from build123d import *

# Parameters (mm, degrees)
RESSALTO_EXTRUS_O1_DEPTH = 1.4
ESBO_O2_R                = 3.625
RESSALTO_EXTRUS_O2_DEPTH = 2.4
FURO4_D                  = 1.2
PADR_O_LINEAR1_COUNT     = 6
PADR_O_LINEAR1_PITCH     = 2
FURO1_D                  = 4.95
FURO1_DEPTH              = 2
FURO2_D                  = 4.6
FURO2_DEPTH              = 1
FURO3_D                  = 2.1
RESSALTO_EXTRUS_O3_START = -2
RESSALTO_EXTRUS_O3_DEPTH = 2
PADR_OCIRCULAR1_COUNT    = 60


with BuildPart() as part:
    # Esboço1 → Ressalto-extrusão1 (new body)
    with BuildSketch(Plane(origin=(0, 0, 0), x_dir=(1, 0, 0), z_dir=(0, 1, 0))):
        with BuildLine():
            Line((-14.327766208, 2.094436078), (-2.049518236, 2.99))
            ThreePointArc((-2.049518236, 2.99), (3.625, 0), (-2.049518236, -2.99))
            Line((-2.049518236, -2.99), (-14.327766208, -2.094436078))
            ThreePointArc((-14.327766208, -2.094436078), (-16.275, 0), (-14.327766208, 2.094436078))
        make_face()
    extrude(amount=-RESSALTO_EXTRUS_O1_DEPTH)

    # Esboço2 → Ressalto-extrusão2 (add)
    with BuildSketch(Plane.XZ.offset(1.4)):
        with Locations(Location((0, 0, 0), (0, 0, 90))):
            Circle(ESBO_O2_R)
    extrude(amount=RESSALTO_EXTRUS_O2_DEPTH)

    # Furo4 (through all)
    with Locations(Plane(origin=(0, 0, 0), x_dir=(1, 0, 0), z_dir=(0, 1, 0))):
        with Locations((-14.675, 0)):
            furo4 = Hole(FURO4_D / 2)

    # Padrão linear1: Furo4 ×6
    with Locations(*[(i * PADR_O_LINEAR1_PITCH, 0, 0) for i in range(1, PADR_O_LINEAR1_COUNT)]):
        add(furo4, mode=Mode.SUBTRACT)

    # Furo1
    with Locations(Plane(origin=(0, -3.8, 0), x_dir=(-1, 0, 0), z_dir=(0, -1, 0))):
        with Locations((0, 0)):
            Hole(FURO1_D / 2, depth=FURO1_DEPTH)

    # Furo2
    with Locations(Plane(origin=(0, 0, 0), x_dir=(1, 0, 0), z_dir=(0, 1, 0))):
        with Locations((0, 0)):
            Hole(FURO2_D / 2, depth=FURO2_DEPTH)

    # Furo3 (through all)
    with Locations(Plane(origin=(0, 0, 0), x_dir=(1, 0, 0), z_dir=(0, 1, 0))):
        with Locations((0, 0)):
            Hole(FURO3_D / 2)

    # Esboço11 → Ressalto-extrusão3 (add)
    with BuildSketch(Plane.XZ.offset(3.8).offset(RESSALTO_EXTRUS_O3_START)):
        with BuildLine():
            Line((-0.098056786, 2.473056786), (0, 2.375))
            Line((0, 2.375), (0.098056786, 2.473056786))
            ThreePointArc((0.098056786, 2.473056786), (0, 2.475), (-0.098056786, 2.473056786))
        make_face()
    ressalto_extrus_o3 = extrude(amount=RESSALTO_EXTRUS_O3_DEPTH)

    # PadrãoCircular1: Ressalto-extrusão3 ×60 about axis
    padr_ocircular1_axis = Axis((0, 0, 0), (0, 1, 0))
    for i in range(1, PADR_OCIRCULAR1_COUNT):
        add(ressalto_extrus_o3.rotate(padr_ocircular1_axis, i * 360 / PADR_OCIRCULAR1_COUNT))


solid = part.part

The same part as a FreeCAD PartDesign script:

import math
import FreeCAD as App
import Part
import Sketcher

V = App.Vector

doc = App.newDocument("Part")
params = doc.addObject("Spreadsheet::Sheet", "Params")
for row, (alias, value) in enumerate([
    ("sketch1_radius", "2.1 mm"),
    ("pad1_length", "1.4 mm"),
    ("sketch2_diameter", "7.25 mm"),
    ("pad2_length", "2.4 mm"),
    ("sketch3_diameter", "1.2 mm"),
    ("hole_diameter", "1.2 mm"),
    ("linearpattern_pitch", "2 mm"),
    ("sketch4_diameter", "4.95 mm"),
    ("hole2_diameter", "4.95 mm"),
    ("hole2_depth", "2 mm"),
    ("sketch5_diameter", "4.6 mm"),
    ("hole3_diameter", "4.6 mm"),
    ("hole3_depth", "1 mm"),
    ("sketch6_diameter", "2.1 mm"),
    ("hole4_diameter", "2.1 mm"),
    ("pad3_length", "2 mm"),
], start=1):
    params.set(f"A{row}", alias)
    params.set(f"B{row}", "=" + value)
    params.setAlias(f"B{row}", alias)

body = doc.addObject("PartDesign::Body", "Body")

# Sketch on XZ plane
sketch1 = body.newObject("Sketcher::SketchObject", "Sketch")
sketch1.AttachmentSupport = (doc.getObject("XZ_Plane"), [""])
sketch1.MapMode = "FlatFace"
sketch1.addGeometry(Part.LineSegment(V(-2.049518, -2.99, 0), V(-14.327766, -2.094436, 0)), False)
sketch1.addGeometry(Part.ArcOfCircle(Part.Circle(V(-14.175, 0, 0), V(0, 0, 1), 2.1), math.radians(94.171713), math.radians(265.828287)), False)
sketch1.addGeometry(Part.LineSegment(V(-14.327766, 2.094436, 0), V(-2.049518, 2.99, 0)), False)
sketch1.addGeometry(Part.ArcOfCircle(Part.Circle(V(0, 0, 0), V(0, 0, 1), 3.625), math.radians(-124.428985), math.radians(124.428985)), False)
sketch1.addConstraint(Sketcher.Constraint("Tangent", 0, 2, 1, 2))
sketch1.addConstraint(Sketcher.Constraint("Tangent", 1, 1, 2, 1))
sketch1.addConstraint(Sketcher.Constraint("Coincident", 2, 2, 3, 2))
sketch1.addConstraint(Sketcher.Constraint("Coincident", 3, 1, 0, 1))
sketch1.addConstraint(Sketcher.Constraint("Coincident", 3, 3, -1, 1))
sketch1.addConstraint(Sketcher.Constraint("Symmetric", 0, 2, 1, 1, -1))
sketch1.addConstraint(Sketcher.Constraint("Radius", 1, 2.1))
sketch1.addConstraint(Sketcher.Constraint("Radius", 3, 3.625))
sketch1.addConstraint(Sketcher.Constraint("DistanceY", -1, 1, 2, 2, 2.99))
sketch1.addConstraint(Sketcher.Constraint("DistanceX", 1, 3, -1, 1, 14.175))
sketch1.setExpression("Constraints[6]", "Params.sketch1_radius")
pad1 = body.newObject("PartDesign::Pad", "Pad")
pad1.Profile = sketch1
pad1.setExpression("Length", "Params.pad1_length")

# Sketch on XZ plane
sketch2 = body.newObject("Sketcher::SketchObject", "Sketch001")
sketch2.AttachmentSupport = (doc.getObject("XZ_Plane"), [""])
sketch2.MapMode = "FlatFace"
sketch2.AttachmentOffset = App.Placement(V(0, 0, 1.4), App.Rotation())
sketch2.addGeometry(Part.Circle(V(0, 0, 0), V(0, 0, 1), 3.625), False)
sketch2.addConstraint(Sketcher.Constraint("Coincident", 0, 3, -1, 1))
sketch2.addConstraint(Sketcher.Constraint("Diameter", 0, 7.25))
sketch2.setExpression("Constraints[1]", "Params.sketch2_diameter")
pad2 = body.newObject("PartDesign::Pad", "Pad001")
pad2.Profile = sketch2
pad2.setExpression("Length", "Params.pad2_length")

# Sketch on XZ plane
sketch3 = body.newObject("Sketcher::SketchObject", "Sketch002")
sketch3.AttachmentSupport = (doc.getObject("XZ_Plane"), [""])
sketch3.MapMode = "FlatFace"
sketch3.addGeometry(Part.Circle(V(-14.675, 0, 0), V(0, 0, 1), 0.6), False)
sketch3.addConstraint(Sketcher.Constraint("PointOnObject", 0, 3, -1))
sketch3.addConstraint(Sketcher.Constraint("Diameter", 0, 1.2))
sketch3.addConstraint(Sketcher.Constraint("DistanceX", 0, 3, -1, 1, 14.675))
sketch3.setExpression("Constraints[1]", "Params.sketch3_diameter")
doc.recompute()
hole = body.newObject("PartDesign::Hole", "Hole")
hole.Profile = sketch3
hole.ThreadType = "None"
hole.setExpression("Diameter", "Params.hole_diameter")
hole.DepthType = "ThroughAll"
hole.Reversed = True
doc.recompute()

linearpattern = body.newObject("PartDesign::LinearPattern", "LinearPattern")
linearpattern.Originals = [hole]
linearpattern.Direction = (doc.getObject("X_Axis"), [""])
linearpattern.Mode = "offset"
linearpattern.setExpression("Offset", "Params.linearpattern_pitch")
linearpattern.Occurrences = 6
body.Tip = linearpattern

# Sketch on XZ plane
sketch4 = body.newObject("Sketcher::SketchObject", "Sketch003")
sketch4.AttachmentSupport = (doc.getObject("XZ_Plane"), [""])
sketch4.MapMode = "FlatFace"
sketch4.AttachmentOffset = App.Placement(V(0, 0, 3.8), App.Rotation())
sketch4.addGeometry(Part.Circle(V(0, 0, 0), V(0, 0, 1), 2.475), False)
sketch4.addConstraint(Sketcher.Constraint("Coincident", 0, 3, -1, 1))
sketch4.addConstraint(Sketcher.Constraint("Diameter", 0, 4.95))
sketch4.setExpression("Constraints[1]", "Params.sketch4_diameter")
doc.recompute()
hole2 = body.newObject("PartDesign::Hole", "Hole001")
hole2.Profile = sketch4
hole2.ThreadType = "None"
hole2.setExpression("Diameter", "Params.hole2_diameter")
hole2.DepthType = "Dimension"
hole2.setExpression("Depth", "Params.hole2_depth")
hole2.DrillPoint = "Flat"

# Sketch on XZ plane
sketch5 = body.newObject("Sketcher::SketchObject", "Sketch004")
sketch5.AttachmentSupport = (doc.getObject("XZ_Plane"), [""])
sketch5.MapMode = "FlatFace"
sketch5.addGeometry(Part.Circle(V(0, 0, 0), V(0, 0, 1), 2.3), False)
sketch5.addConstraint(Sketcher.Constraint("Coincident", 0, 3, -1, 1))
sketch5.addConstraint(Sketcher.Constraint("Diameter", 0, 4.6))
sketch5.setExpression("Constraints[1]", "Params.sketch5_diameter")
doc.recompute()
hole3 = body.newObject("PartDesign::Hole", "Hole002")
hole3.Profile = sketch5
hole3.ThreadType = "None"
hole3.setExpression("Diameter", "Params.hole3_diameter")
hole3.DepthType = "Dimension"
hole3.setExpression("Depth", "Params.hole3_depth")
hole3.DrillPoint = "Flat"
hole3.Reversed = True

# Sketch on XZ plane
sketch6 = body.newObject("Sketcher::SketchObject", "Sketch005")
sketch6.AttachmentSupport = (doc.getObject("XZ_Plane"), [""])
sketch6.MapMode = "FlatFace"
sketch6.addGeometry(Part.Circle(V(0, 0, 0), V(0, 0, 1), 1.05), False)
sketch6.addConstraint(Sketcher.Constraint("Coincident", 0, 3, -1, 1))
sketch6.addConstraint(Sketcher.Constraint("Diameter", 0, 2.1))
sketch6.setExpression("Constraints[1]", "Params.sketch6_diameter")
doc.recompute()
hole4 = body.newObject("PartDesign::Hole", "Hole003")
hole4.Profile = sketch6
hole4.ThreadType = "None"
hole4.setExpression("Diameter", "Params.hole4_diameter")
hole4.DepthType = "ThroughAll"
hole4.Reversed = True

# Sketch on XZ plane
sketch7 = body.newObject("Sketcher::SketchObject", "Sketch006")
sketch7.AttachmentSupport = (doc.getObject("XZ_Plane"), [""])
sketch7.MapMode = "FlatFace"
sketch7.AttachmentOffset = App.Placement(V(0, 0, 1.8), App.Rotation())
sketch7.addGeometry(Part.LineSegment(V(-0.098057, 2.473057, 0), V(0, 2.375, 0)), False)
sketch7.addGeometry(Part.LineSegment(V(0, 2.375, 0), V(0.098057, 2.473057, 0)), False)
sketch7.addGeometry(Part.ArcOfCircle(Part.Circle(V(0, 0, 0), V(0, 0, 1), 2.475), math.radians(87.72941), math.radians(92.27059)), False)
sketch7.addConstraint(Sketcher.Constraint("Coincident", 0, 2, 1, 1))
sketch7.addConstraint(Sketcher.Constraint("Coincident", 1, 2, 2, 1))
sketch7.addConstraint(Sketcher.Constraint("Coincident", 2, 2, 0, 1))
sketch7.addConstraint(Sketcher.Constraint("Coincident", 2, 3, -1, 1))
sketch7.addConstraint(Sketcher.Constraint("PointOnObject", 0, 2, -2))
sketch7.addConstraint(Sketcher.Constraint("Perpendicular", 0, 1))
sketch7.addConstraint(Sketcher.Constraint("Horizontal", 1, 2, 2, 2))
sketch7.addConstraint(Sketcher.Constraint("Radius", 2, 2.475))
sketch7.addConstraint(Sketcher.Constraint("DistanceY", -1, 1, 0, 2, 2.375))
pad3 = body.newObject("PartDesign::Pad", "Pad002")
pad3.Profile = sketch7
pad3.setExpression("Length", "Params.pad3_length")
doc.recompute()

polarpattern = body.newObject("PartDesign::PolarPattern", "PolarPattern")
polarpattern.Originals = [pad3]
polarpattern.Axis = (doc.getObject("Y_Axis"), [""])
polarpattern.Angle = 360
polarpattern.Occurrences = 60
body.Tip = polarpattern

doc.recompute()
